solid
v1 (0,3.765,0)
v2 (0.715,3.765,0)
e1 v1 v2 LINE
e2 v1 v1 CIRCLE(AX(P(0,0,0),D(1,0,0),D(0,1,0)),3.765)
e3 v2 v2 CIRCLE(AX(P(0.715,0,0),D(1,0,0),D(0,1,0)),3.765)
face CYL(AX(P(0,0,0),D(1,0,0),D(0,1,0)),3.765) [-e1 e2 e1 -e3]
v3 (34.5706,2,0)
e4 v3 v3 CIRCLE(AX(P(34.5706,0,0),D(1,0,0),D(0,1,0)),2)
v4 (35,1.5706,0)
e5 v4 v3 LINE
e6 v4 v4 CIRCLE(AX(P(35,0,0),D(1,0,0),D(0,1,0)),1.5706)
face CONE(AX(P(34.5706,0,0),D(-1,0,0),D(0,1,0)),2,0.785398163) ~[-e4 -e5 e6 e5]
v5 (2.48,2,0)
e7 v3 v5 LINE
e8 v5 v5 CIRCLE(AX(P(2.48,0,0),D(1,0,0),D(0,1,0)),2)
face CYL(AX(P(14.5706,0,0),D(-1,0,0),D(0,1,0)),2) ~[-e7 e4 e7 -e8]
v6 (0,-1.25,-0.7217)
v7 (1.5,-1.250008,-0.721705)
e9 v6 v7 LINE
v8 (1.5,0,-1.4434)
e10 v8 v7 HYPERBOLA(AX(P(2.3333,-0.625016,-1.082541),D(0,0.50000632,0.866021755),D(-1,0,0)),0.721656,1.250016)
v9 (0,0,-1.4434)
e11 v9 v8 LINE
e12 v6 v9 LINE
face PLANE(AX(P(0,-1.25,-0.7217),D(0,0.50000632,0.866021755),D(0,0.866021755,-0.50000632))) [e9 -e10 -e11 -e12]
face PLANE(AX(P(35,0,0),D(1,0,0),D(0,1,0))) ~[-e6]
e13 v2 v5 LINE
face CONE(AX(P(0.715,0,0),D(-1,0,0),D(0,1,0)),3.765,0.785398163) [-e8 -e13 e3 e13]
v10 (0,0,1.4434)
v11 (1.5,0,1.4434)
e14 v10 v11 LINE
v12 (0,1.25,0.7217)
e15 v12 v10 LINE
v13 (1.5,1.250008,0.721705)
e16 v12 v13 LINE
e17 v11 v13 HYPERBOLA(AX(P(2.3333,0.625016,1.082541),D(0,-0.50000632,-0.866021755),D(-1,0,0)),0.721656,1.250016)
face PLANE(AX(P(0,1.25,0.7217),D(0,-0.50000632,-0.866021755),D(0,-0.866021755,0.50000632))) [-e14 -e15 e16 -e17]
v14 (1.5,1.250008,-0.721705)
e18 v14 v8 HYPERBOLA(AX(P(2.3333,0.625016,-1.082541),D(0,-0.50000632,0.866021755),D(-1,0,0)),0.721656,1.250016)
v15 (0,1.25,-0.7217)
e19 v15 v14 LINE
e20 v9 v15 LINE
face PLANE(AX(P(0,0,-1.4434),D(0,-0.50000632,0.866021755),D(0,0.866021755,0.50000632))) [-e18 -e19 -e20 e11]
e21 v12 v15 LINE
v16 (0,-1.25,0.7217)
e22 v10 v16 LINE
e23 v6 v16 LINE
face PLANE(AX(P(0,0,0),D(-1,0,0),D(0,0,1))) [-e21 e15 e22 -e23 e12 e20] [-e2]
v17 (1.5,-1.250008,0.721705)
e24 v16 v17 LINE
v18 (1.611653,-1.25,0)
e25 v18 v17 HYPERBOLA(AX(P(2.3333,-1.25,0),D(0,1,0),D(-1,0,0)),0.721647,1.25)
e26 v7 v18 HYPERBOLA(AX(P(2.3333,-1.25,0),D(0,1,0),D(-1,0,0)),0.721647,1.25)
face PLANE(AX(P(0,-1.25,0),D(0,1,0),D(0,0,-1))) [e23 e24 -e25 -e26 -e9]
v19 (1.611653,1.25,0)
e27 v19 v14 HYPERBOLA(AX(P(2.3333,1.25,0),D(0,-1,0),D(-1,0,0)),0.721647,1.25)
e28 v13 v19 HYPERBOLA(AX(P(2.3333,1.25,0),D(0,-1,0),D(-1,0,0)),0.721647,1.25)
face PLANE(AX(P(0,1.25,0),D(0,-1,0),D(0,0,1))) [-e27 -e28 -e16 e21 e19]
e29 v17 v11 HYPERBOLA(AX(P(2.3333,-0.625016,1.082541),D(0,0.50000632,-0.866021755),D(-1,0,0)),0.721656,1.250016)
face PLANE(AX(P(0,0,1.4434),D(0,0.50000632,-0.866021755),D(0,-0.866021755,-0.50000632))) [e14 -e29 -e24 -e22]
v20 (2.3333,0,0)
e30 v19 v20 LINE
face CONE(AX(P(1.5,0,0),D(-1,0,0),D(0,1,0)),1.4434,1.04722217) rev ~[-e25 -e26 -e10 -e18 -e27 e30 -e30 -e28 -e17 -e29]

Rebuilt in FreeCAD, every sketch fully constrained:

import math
import FreeCAD as App
import Part
import Sketcher
from FreeCAD import Vector
Q = App.Units.Quantity


def edges_at(feature, points):
    """Names of the edges that pass closest to the given points."""
    edges = feature.Shape.Edges
    near = lambda p: min(range(len(edges)), key=lambda i: edges[i].distToShape(Part.Vertex(*p))[0])
    return sorted({f"Edge{near(p) + 1}" for p in points})

doc = App.newDocument("Part")
body = doc.addObject("PartDesign::Body", "Body")

# Sketch on XY plane
sketch1 = body.newObject("Sketcher::SketchObject", "Sketch")
sketch1.AttachmentSupport = (doc.getObject("XY_Plane"), [""])
sketch1.MapMode = "FlatFace"
sketch1.addGeometry(Part.LineSegment(Vector(2.3, 0, 0), Vector(35, 0, 0)), False)
sketch1.addGeometry(Part.LineSegment(Vector(35, 0, 0), Vector(35, 2, 0)), False)
sketch1.addGeometry(Part.LineSegment(Vector(35, 2, 0), Vector(2.5, 2, 0)), False)
sketch1.addGeometry(Part.LineSegment(Vector(2.5, 2, 0), Vector(0.7, 3.8, 0)), False)
sketch1.addGeometry(Part.LineSegment(Vector(0.7, 3.8, 0), Vector(0, 3.8, 0)), False)
sketch1.addGeometry(Part.LineSegment(Vector(0, 3.8, 0), Vector(0, 1.4, 0)), False)
sketch1.addGeometry(Part.LineSegment(Vector(0, 1.4, 0), Vector(1.5, 1.4, 0)), False)
sketch1.addGeometry(Part.LineSegment(Vector(1.5, 1.4, 0), Vector(2.3, 0, 0)), False)
sketch1.addConstraint(Sketcher.Constraint("Coincident", 0, 2, 1, 1))
sketch1.addConstraint(Sketcher.Constraint("Coincident", 1, 2, 2, 1))
sketch1.addConstraint(Sketcher.Constraint("Coincident", 2, 2, 3, 1))
sketch1.addConstraint(Sketcher.Constraint("Coincident", 3, 2, 4, 1))
sketch1.addConstraint(Sketcher.Constraint("Coincident", 4, 2, 5, 1))
sketch1.addConstraint(Sketcher.Constraint("Coincident", 5, 2, 6, 1))
sketch1.addConstraint(Sketcher.Constraint("Coincident", 6, 2, 7, 1))
sketch1.addConstraint(Sketcher.Constraint("Coincident", 7, 2, 0, 1))
sketch1.addConstraint(Sketcher.Constraint("Horizontal", 0))
sketch1.addConstraint(Sketcher.Constraint("Vertical", 1))
sketch1.addConstraint(Sketcher.Constraint("Horizontal", 2))
sketch1.addConstraint(Sketcher.Constraint("Horizontal", 4))
sketch1.addConstraint(Sketcher.Constraint("Vertical", 5))
sketch1.addConstraint(Sketcher.Constraint("Horizontal", 6))
sketch1.addConstraint(Sketcher.Constraint("PointOnObject", 0, 2, -1))
sketch1.addConstraint(Sketcher.Constraint("PointOnObject", 4, 2, -2))
sketch1.addConstraint(Sketcher.Constraint("DistanceX", 6, 1, 6, 2, Q("1.5 mm")))
sketch1.addConstraint(Sketcher.Constraint("DistanceX", -1, 1, 0, 2, Q("35 mm")))
sketch1.addConstraint(Sketcher.Constraint("DistanceY", 1, 1, 1, 2, Q("2 mm")))
sketch1.addConstraint(Sketcher.Constraint("DistanceX", -1, 1, 2, 2, Q("2.48 mm")))
sketch1.addConstraint(Sketcher.Constraint("Angle", 3, Q("135 deg")))
sketch1.addConstraint(Sketcher.Constraint("DistanceX", 4, 2, 4, 1, Q("0.715 mm")))
sketch1.addConstraint(Sketcher.Constraint("DistanceX", 0, 1, 0, 2, Q("32.6667 mm")))
sketch1.addConstraint(Sketcher.Constraint("DistanceY", 5, 2, 5, 1, Q("2.3216 mm")))
revolution = body.newObject("PartDesign::Revolution", "Revolution")
revolution.Profile = sketch1
revolution.ReferenceAxis = (sketch1, ["H_Axis"])
revolution.Angle = 360

# Sketch on YZ plane
sketch2 = body.newObject("Sketcher::SketchObject", "Sketch001")
sketch2.AttachmentSupport = (doc.getObject("YZ_Plane"), [""])
sketch2.MapMode = "FlatFace"
sketch2.addGeometry(Part.LineSegment(Vector(1.2, 0.7, 0), Vector(0, 1.4, 0)), False)
sketch2.addGeometry(Part.ArcOfCircle(Part.Circle(Vector(0, 0, 0), Vector(0, 0, 1), 1.4), math.radians(30), math.radians(90)), False)
sketch2.addGeometry(Part.ArcOfCircle(Part.Circle(Vector(0, 0, 0), Vector(0, 0, 1), 1.4), math.radians(90), math.radians(150)), False)
sketch2.addGeometry(Part.LineSegment(Vector(0, 1.4, 0), Vector(-1.2, 0.7, 0)), False)
sketch2.addGeometry(Part.ArcOfCircle(Part.Circle(Vector(0, 0, 0), Vector(0, 0, 1), 1.4), math.radians(-30), math.radians(30)), False)
sketch2.addGeometry(Part.LineSegment(Vector(1.2, 0.7, 0), Vector(1.2, -0.7, 0)), False)
sketch2.addGeometry(Part.LineSegment(Vector(-1.2, 0.7, 0), Vector(-1.2, -0.7, 0)), False)
sketch2.addGeometry(Part.ArcOfCircle(Part.Circle(Vector(0, 0, 0), Vector(0, 0, 1), 1.4), math.radians(150), math.radians(210)), False)
sketch2.addGeometry(Part.LineSegment(Vector(-1.2, -0.7, 0), Vector(0, -1.4, 0)), False)
sketch2.addGeometry(Part.ArcOfCircle(Part.Circle(Vector(0, 0, 0), Vector(0, 0, 1), 1.4), math.radians(-150), math.radians(-90)), False)
sketch2.addGeometry(Part.ArcOfCircle(Part.Circle(Vector(0, 0, 0), Vector(0, 0, 1), 1.4), math.radians(-90), math.radians(-30)), False)
sketch2.addGeometry(Part.LineSegment(Vector(0, -1.4, 0), Vector(1.2, -0.7, 0)), False)
sketch2.addConstraint(Sketcher.Constraint("Coincident", 0, 1, 1, 1))
sketch2.addConstraint(Sketcher.Constraint("Coincident", 1, 2, 0, 2))
sketch2.addConstraint(Sketcher.Constraint("Coincident", 2, 1, 3, 1))
sketch2.addConstraint(Sketcher.Constraint("Coincident", 3, 2, 2, 2))
sketch2.addConstraint(Sketcher.Constraint("Coincident", 4, 1, 5, 2))
sketch2.addConstraint(Sketcher.Constraint("Coincident", 5, 1, 4, 2))
sketch2.addConstraint(Sketcher.Constraint("Coincident", 6, 1, 7, 1))
sketch2.addConstraint(Sketcher.Constraint("Coincident", 7, 2, 6, 2))
sketch2.addConstraint(Sketcher.Constraint("Coincident", 8, 1, 9, 1))
sketch2.addConstraint(Sketcher.Constraint("Coincident", 9, 2, 8, 2))
sketch2.addConstraint(Sketcher.Constraint("Coincident", 10, 1, 11, 1))
sketch2.addConstraint(Sketcher.Constraint("Coincident", 11, 2, 10, 2))
sketch2.addConstraint(Sketcher.Constraint("Vertical", 5))
sketch2.addConstraint(Sketcher.Constraint("Vertical", 6))
sketch2.addConstraint(Sketcher.Constraint("Coincident", 1, 3, -1, 1))
sketch2.addConstraint(Sketcher.Constraint("Coincident", 2, 3, -1, 1))
sketch2.addConstraint(Sketcher.Constraint("Coincident", 4, 3, -1, 1))
sketch2.addConstraint(Sketcher.Constraint("Coincident", 7, 3, -1, 1))
sketch2.addConstraint(Sketcher.Constraint("Coincident", 9, 3, -1, 1))
sketch2.addConstraint(Sketcher.Constraint("Coincident", 10, 3, -1, 1))
sketch2.addConstraint(Sketcher.Constraint("Coincident", 2, 1, 1, 2))
sketch2.addConstraint(Sketcher.Constraint("Coincident", 5, 1, 0, 1))
sketch2.addConstraint(Sketcher.Constraint("Coincident", 6, 1, 3, 2))
sketch2.addConstraint(Sketcher.Constraint("Coincident", 8, 1, 7, 2))
sketch2.addConstraint(Sketcher.Constraint("Coincident", 10, 1, 9, 2))
sketch2.addConstraint(Sketcher.Constraint("PointOnObject", 1, 2, -2))
sketch2.addConstraint(Sketcher.Constraint("PointOnObject", 9, 2, -2))
sketch2.addConstraint(Sketcher.Constraint("Parallel", 0, 8))
sketch2.addConstraint(Sketcher.Constraint("Parallel", 3, 11))
sketch2.addConstraint(Sketcher.Constraint("Angle", 0, Q("149.9996 deg")))
sketch2.addConstraint(Sketcher.Constraint("Radius", 1, Q("1.4434 mm")))
pad1 = body.newObject("PartDesign::Pad", "Pad")
pad1.Profile = sketch2
pad1.Type = "UpToFirst"
doc.recompute()

chamfer = body.newObject("PartDesign::Chamfer", "Chamfer")
chamfer.Base = (pad1, edges_at(pad1, [(35, -2, 0)]))
chamfer.ChamferType = "Two distances"
chamfer.Size = 0.4294
chamfer.Size2 = 0.4294

doc.recompute()
